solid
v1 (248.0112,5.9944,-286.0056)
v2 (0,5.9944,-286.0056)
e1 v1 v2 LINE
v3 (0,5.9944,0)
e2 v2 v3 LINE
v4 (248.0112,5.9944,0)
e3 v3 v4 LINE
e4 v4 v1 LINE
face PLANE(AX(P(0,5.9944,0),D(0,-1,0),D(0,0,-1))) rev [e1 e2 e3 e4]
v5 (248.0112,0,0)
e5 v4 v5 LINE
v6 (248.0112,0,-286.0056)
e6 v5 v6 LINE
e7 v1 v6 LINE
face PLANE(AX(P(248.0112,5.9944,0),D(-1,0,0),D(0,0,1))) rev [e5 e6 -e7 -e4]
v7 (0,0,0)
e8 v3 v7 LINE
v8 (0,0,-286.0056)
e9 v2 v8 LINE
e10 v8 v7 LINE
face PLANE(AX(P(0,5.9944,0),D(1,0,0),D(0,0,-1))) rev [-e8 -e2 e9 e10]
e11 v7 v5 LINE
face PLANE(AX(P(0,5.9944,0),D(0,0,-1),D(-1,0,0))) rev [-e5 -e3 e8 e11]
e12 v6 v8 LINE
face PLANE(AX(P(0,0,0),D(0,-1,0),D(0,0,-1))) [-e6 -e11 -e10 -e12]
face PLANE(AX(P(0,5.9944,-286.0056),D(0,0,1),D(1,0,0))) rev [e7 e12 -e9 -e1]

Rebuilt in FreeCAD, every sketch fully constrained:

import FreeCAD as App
import Part
import Sketcher
Q = App.Units.Quantity


def add_polygon(sketch, points):
    """Adds a closed chain of lines whose ends are joined by coincident constraints."""
    first, n = sketch.GeometryCount, len(points)
    for a, b in zip(points, points[1:] + points[:1]):
        sketch.addGeometry(Part.LineSegment(App.Vector(*a, 0), App.Vector(*b, 0)), False)
    for i in range(n):
        sketch.addConstraint(Sketcher.Constraint("Coincident", first + i, 2, first + (i + 1) % n, 1))

doc = App.newDocument("Part")
params = doc.addObject("Spreadsheet::Sheet", "Params")
for row, (alias, value) in enumerate([
    ("pad1_length", "0.236 in"),
], start=1):
    params.set(f"A{row}", alias)
    params.set(f"B{row}", "=" + value)
    params.setAlias(f"B{row}", alias)

body = doc.addObject("PartDesign::Body", "Body")

# Sketch on XZ plane
sketch1 = body.newObject("Sketcher::SketchObject", "Sketch")
sketch1.AttachmentSupport = (doc.getObject("XZ_Plane"), [""])
sketch1.MapMode = "FlatFace"
add_polygon(sketch1, [(0, -286), (0, 0), (248, 0), (248, -286)])  # lines 0-3
sketch1.addConstraint(Sketcher.Constraint("Vertical", 0))
sketch1.addConstraint(Sketcher.Constraint("Horizontal", 1))
sketch1.addConstraint(Sketcher.Constraint("Vertical", 2))
sketch1.addConstraint(Sketcher.Constraint("Horizontal", 3))
sketch1.addConstraint(Sketcher.Constraint("Coincident", 0, 2, -1, 1))
sketch1.addConstraint(Sketcher.Constraint("DistanceX", 1, 1, 1, 2, Q("248.0112 mm")))
sketch1.addConstraint(Sketcher.Constraint("DistanceY", 0, 1, 0, 2, Q("286.0056 mm")))
pad1 = body.newObject("PartDesign::Pad", "Pad")
pad1.Profile = sketch1
pad1.setExpression("Length", "Params.pad1_length")
pad1.Reversed = True

doc.recompute()
